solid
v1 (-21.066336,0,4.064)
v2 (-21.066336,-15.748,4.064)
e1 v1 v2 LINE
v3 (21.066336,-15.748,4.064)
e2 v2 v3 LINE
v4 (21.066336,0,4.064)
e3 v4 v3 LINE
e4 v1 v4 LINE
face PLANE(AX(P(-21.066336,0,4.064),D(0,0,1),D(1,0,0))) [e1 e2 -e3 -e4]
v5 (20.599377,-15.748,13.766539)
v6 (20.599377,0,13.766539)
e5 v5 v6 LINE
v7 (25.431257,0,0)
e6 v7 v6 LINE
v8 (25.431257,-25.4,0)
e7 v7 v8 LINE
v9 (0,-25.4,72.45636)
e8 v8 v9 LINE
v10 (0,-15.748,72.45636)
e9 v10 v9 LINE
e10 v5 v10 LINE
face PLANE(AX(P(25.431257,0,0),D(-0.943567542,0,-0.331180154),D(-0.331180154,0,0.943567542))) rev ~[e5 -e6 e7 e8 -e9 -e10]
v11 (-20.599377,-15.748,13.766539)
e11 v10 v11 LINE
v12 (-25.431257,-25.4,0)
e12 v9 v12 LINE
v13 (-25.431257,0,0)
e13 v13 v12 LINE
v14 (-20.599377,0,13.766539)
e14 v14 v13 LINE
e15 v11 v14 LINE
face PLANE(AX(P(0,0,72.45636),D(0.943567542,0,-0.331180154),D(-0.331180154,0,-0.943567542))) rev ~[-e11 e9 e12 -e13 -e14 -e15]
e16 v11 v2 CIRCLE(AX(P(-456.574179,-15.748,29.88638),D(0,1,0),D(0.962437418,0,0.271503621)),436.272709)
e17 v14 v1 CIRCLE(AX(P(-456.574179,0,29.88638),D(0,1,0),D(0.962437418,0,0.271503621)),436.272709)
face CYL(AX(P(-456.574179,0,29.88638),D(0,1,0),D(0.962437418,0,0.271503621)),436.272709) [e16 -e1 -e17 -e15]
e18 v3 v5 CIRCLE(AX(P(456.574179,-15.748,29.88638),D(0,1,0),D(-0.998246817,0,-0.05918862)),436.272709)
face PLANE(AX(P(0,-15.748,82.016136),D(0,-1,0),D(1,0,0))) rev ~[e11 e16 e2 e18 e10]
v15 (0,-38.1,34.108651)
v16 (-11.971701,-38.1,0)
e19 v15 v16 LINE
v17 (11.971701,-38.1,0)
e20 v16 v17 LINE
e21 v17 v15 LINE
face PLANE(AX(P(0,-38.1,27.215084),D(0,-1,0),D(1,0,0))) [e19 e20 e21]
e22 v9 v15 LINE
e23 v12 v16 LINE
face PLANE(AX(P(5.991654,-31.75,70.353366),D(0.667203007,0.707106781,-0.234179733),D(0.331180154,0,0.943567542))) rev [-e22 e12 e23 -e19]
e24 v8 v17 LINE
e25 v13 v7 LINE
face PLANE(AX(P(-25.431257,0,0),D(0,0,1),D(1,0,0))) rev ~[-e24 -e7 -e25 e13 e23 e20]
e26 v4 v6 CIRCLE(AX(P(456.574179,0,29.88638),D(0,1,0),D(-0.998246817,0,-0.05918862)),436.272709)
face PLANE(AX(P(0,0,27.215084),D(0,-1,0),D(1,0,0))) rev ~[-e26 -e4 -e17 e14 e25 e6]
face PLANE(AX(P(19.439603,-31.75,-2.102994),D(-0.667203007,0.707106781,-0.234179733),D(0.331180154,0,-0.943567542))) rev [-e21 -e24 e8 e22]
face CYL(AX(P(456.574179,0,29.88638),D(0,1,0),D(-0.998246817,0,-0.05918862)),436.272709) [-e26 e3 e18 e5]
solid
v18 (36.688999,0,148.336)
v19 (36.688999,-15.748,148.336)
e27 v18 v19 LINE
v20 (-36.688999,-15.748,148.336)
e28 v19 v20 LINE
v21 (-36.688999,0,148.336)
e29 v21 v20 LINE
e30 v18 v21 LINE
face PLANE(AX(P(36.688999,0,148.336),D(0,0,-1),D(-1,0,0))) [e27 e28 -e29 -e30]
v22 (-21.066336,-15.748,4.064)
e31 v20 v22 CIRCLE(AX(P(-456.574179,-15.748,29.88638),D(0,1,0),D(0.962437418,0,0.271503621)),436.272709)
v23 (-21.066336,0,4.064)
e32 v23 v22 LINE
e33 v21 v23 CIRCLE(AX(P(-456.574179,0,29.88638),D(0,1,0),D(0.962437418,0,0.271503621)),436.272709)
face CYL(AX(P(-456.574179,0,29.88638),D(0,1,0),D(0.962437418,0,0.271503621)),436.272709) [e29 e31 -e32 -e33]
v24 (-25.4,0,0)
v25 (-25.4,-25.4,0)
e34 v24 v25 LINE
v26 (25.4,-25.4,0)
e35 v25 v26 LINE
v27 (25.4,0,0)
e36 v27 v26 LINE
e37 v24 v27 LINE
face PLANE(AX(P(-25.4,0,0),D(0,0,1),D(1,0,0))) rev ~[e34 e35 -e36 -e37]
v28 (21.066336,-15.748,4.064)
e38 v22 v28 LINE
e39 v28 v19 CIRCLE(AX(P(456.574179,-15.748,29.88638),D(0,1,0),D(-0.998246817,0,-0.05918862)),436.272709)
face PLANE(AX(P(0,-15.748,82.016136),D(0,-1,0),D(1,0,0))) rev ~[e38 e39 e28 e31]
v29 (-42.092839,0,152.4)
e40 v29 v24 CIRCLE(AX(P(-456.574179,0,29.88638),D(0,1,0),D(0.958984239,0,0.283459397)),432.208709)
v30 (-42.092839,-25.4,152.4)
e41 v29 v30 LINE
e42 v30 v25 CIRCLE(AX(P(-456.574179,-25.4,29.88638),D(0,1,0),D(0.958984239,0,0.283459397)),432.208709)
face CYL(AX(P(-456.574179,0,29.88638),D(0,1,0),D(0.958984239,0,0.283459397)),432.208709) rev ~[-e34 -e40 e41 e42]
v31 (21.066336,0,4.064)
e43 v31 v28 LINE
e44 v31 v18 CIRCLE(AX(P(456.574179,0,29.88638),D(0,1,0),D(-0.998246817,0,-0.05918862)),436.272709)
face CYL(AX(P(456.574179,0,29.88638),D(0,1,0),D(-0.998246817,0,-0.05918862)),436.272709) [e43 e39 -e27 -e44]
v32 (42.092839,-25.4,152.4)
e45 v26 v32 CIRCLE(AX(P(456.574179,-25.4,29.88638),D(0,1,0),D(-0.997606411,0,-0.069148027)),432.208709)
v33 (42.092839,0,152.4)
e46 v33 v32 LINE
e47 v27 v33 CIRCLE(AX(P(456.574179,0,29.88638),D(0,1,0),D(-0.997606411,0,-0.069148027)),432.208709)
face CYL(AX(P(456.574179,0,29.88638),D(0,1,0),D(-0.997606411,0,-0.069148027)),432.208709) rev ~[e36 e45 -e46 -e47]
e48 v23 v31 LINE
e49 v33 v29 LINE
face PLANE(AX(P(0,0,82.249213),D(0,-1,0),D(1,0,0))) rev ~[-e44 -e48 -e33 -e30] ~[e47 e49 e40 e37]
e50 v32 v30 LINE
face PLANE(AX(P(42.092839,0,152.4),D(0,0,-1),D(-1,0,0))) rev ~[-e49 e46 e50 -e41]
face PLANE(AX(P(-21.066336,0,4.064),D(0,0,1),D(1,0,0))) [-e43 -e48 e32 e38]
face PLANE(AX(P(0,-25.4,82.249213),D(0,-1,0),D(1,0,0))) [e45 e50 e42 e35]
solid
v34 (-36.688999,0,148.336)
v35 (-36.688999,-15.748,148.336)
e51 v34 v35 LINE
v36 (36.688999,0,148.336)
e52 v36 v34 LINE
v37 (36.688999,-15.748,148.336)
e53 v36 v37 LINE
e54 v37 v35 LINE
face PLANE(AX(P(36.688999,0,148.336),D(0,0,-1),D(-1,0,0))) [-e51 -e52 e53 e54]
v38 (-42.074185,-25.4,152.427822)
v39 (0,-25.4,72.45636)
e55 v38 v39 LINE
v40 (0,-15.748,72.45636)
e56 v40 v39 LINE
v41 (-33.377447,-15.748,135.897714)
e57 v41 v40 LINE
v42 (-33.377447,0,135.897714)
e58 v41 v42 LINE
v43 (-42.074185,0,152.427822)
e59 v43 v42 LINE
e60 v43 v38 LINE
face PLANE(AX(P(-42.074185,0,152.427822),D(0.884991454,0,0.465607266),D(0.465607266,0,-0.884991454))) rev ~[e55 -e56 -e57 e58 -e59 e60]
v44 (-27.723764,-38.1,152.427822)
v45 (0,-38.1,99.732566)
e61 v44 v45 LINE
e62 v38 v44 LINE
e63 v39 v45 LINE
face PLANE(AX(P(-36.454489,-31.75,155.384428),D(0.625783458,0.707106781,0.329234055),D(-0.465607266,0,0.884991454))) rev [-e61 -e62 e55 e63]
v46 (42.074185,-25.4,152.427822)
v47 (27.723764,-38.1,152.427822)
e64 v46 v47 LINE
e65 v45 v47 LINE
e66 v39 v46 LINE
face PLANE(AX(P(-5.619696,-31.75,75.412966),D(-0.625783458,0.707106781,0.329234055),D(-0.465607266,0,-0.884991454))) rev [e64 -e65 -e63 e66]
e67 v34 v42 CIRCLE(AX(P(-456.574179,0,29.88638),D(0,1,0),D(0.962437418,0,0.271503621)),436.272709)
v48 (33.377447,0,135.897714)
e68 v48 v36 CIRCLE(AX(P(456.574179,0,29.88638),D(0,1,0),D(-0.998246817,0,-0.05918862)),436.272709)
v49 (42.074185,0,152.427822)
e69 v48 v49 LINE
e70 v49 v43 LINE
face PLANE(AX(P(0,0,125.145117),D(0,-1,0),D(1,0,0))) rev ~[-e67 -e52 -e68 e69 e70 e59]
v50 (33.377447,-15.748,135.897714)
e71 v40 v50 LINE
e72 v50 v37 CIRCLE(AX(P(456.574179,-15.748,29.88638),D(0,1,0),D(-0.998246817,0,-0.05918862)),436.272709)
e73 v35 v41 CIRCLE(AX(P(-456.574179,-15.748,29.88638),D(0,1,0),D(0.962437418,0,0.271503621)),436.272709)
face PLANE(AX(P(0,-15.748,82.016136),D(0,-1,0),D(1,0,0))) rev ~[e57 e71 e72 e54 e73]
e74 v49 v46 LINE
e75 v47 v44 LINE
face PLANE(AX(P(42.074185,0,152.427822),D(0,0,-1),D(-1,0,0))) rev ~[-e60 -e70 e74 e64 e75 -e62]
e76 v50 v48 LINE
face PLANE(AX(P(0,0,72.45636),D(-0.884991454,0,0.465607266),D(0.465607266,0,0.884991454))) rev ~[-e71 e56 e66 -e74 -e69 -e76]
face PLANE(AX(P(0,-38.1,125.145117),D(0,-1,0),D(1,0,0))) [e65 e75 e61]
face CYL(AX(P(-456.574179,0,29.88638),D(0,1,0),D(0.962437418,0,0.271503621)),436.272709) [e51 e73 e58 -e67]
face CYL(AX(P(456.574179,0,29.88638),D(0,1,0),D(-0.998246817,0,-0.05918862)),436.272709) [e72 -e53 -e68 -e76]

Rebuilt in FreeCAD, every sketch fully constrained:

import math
import FreeCAD as App
import Part
import Sketcher
Q = App.Units.Quantity


def edges_at(feature, points):
    """Names of the edges that pass closest to the given points."""
    edges = feature.Shape.Edges
    near = lambda p: min(range(len(edges)), key=lambda i: edges[i].distToShape(Part.Vertex(*p))[0])
    return sorted({f"Edge{near(p) + 1}" for p in points})


def add_polygon(sketch, points):
    """Adds a closed chain of lines whose ends are joined by coincident constraints."""
    first, n = sketch.GeometryCount, len(points)
    for a, b in zip(points, points[1:] + points[:1]):
        sketch.addGeometry(Part.LineSegment(App.Vector(*a, 0), App.Vector(*b, 0)), False)
    for i in range(n):
        sketch.addConstraint(Sketcher.Constraint("Coincident", first + i, 2, first + (i + 1) % n, 1))

doc = App.newDocument("Part")
body = doc.addObject("PartDesign::Body", "Body")

sketch1 = body.newObject("Sketcher::SketchObject", "Sketch")
sketch1.AttachmentSupport = (doc.getObject("XZ_Plane"), [""])
sketch1.MapMode = "FlatFace"
sketch1.addGeometry(Part.LineSegment(App.Vector(-25.4, 0, 0), App.Vector(25.4, 0, 0)), False)
sketch1.addGeometry(Part.ArcOfCircle(Part.Circle(App.Vector(456.574179, 29.88638, 0), App.Vector(0, 0, 1), 432.208709), math.radians(163.533219), math.radians(183.965054)), False)
sketch1.addGeometry(Part.LineSegment(App.Vector(42.092839, 152.4, 0), App.Vector(-42.092839, 152.4, 0)), False)
sketch1.addGeometry(Part.ArcOfCircle(Part.Circle(App.Vector(-456.574179, 29.88638, 0), App.Vector(0, 0, 1), 432.208709), math.radians(-3.965054), math.radians(16.466781)), False)
sketch1.addConstraint(Sketcher.Constraint("Coincident", 0, 2, 1, 2))
sketch1.addConstraint(Sketcher.Constraint("Coincident", 1, 1, 2, 1))
sketch1.addConstraint(Sketcher.Constraint("Coincident", 2, 2, 3, 2))
sketch1.addConstraint(Sketcher.Constraint("Coincident", 3, 1, 0, 1))
sketch1.addConstraint(Sketcher.Constraint("Horizontal", 0))
sketch1.addConstraint(Sketcher.Constraint("Horizontal", 2))
sketch1.addConstraint(Sketcher.Constraint("Equal", 1, 3))
sketch1.addConstraint(Sketcher.Constraint("Symmetric", 0, 2, 3, 1, -1, 1))
sketch1.addConstraint(Sketcher.Constraint("Horizontal", 1, 3, 3, 3))
sketch1.addConstraint(Sketcher.Constraint("DistanceX", 0, 1, 0, 2, Q("2 in")))
sketch1.addConstraint(Sketcher.Constraint("DistanceY", -1, 1, 2, 2, Q("6 in")))
sketch1.addConstraint(Sketcher.Constraint("Radius", 1, 432.208709))
sketch1.addConstraint(Sketcher.Constraint("DistanceX", 2, 2, 2, 1, 84.185678))
pad1 = body.newObject("PartDesign::Pad", "Pad")
pad1.Profile = sketch1
pad1.Length = Q("1 in")
body2 = doc.addObject("PartDesign::Body", "Body001")

sketch2 = body2.newObject("Sketcher::SketchObject", "Sketch001")
sketch2.AttachmentSupport = (doc.getObject("XZ_Plane001"), [""])
sketch2.MapMode = "FlatFace"
add_polygon(sketch2, [(42.074185, 152.427822), (-42.074185, 152.427822), (0, 72.45636)])
sketch2.addConstraint(Sketcher.Constraint("Horizontal", 0))
sketch2.addConstraint(Sketcher.Constraint("PointOnObject", 1, 2, -2))
sketch2.addConstraint(Sketcher.Constraint("Equal", 1, 2))
sketch2.addConstraint(Sketcher.Constraint("DistanceX", 0, 2, 0, 1, 84.14837))
sketch2.addConstraint(Sketcher.Constraint("DistanceY", -1, 1, 1, 2, 72.45636))
sketch2.addConstraint(Sketcher.Constraint("Distance", 1, 90.364107))
pad2 = body2.newObject("PartDesign::Pad", "Pad001")
pad2.Profile = sketch2
pad2.Length = Q("1.5 in")
doc.recompute()

chamfer = body2.newObject("PartDesign::Chamfer", "Chamfer")
chamfer.Base = (pad2, edges_at(pad2, [(-21.037, -38.1, 112.442), (21.037, -38.1, 112.442)]))
chamfer.Size = Q("0.5 in")
body3 = doc.addObject("PartDesign::Body", "Body002")

sketch3 = body3.newObject("Sketcher::SketchObject", "Sketch002")
sketch3.AttachmentSupport = (doc.getObject("XZ_Plane002"), [""])
sketch3.MapMode = "FlatFace"
add_polygon(sketch3, [(25.431257, 0), (0, 72.45636), (-25.431257, 0)])
sketch3.addConstraint(Sketcher.Constraint("Horizontal", 2))
sketch3.addConstraint(Sketcher.Constraint("Symmetric", 1, 2, 2, 2, -1, 1))
sketch3.addConstraint(Sketcher.Constraint("PointOnObject", 0, 2, -2))
sketch3.addConstraint(Sketcher.Constraint("DistanceX", 2, 1, 2, 2, 50.862513))
sketch3.addConstraint(Sketcher.Constraint("DistanceY", -1, 1, 0, 2, 72.45636))
pad3 = body3.newObject("PartDesign::Pad", "Pad002")
pad3.Profile = sketch3
pad3.Length = Q("1.5 in")
doc.recompute()

chamfer2 = body3.newObject("PartDesign::Chamfer", "Chamfer001")
chamfer2.Base = (pad3, edges_at(pad3, [(-12.716, -38.1, 36.228), (12.716, -38.1, 36.228)]))
chamfer2.Size = Q("0.5 in")
body4 = doc.addObject("PartDesign::Body", "Body003")

sketch4 = body4.newObject("Sketcher::SketchObject", "Sketch003")
sketch4.AttachmentSupport = (doc.getObject("XZ_Plane003"), [""])
sketch4.MapMode = "FlatFace"
sketch4.addGeometry(Part.LineSegment(App.Vector(36.688999, 148.336, 0), App.Vector(-36.688999, 148.336, 0)), False)
sketch4.addGeometry(Part.ArcOfCircle(Part.Circle(App.Vector(-456.574179, 29.88638, 0), App.Vector(0, 0, 1), 436.272709), math.radians(-3.393241), math.radians(15.753761)), False)
sketch4.addGeometry(Part.LineSegment(App.Vector(-21.066336, 4.064, 0), App.Vector(21.066336, 4.064, 0)), False)
sketch4.addGeometry(Part.ArcOfCircle(Part.Circle(App.Vector(456.574179, 29.88638, 0), App.Vector(0, 0, 1), 436.272709), math.radians(164.246239), math.radians(183.393241)), False)
sketch4.addConstraint(Sketcher.Constraint("Coincident", 0, 2, 1, 2))
sketch4.addConstraint(Sketcher.Constraint("Coincident", 1, 1, 2, 1))
sketch4.addConstraint(Sketcher.Constraint("Coincident", 2, 2, 3, 2))
sketch4.addConstraint(Sketcher.Constraint("Coincident", 3, 1, 0, 1))
sketch4.addConstraint(Sketcher.Constraint("Horizontal", 0))
sketch4.addConstraint(Sketcher.Constraint("Horizontal", 2))
sketch4.addConstraint(Sketcher.Constraint("Equal", 1, 3))
sketch4.addConstraint(Sketcher.Constraint("Symmetric", 1, 3, 3, 3, -2))
sketch4.addConstraint(Sketcher.Constraint("DistanceY", -1, 1, 0, 2, Q("5.84 in")))
sketch4.addConstraint(Sketcher.Constraint("DistanceY", -1, 1, 2, 2, Q("0.16 in")))
sketch4.addConstraint(Sketcher.Constraint("Radius", 1, 436.272709))
sketch4.addConstraint(Sketcher.Constraint("DistanceX", 0, 2, 0, 1, 73.377998))
sketch4.addConstraint(Sketcher.Constraint("DistanceX", 2, 1, 2, 2, 42.132671))
pad4 = body4.newObject("PartDesign::Pad", "Pad003")
pad4.Profile = sketch4
pad4.Length = Q("0.62 in")
doc.recompute()

body5 = doc.addObject("PartDesign::Body", "Body004")
body5.BaseFeature = body4
boolean = body.newObject("PartDesign::Boolean", "Boolean")
boolean.Type = "Cut"
boolean.addObjects([body5])
doc.recompute()

body6 = doc.addObject("PartDesign::Body", "Body005")
body6.BaseFeature = body4
boolean2 = body2.newObject("PartDesign::Boolean", "Boolean001")
boolean2.Type = "Cut"
boolean2.addObjects([body6])
doc.recompute()

boolean3 = body3.newObject("PartDesign::Boolean", "Boolean002")
boolean3.Type = "Cut"
boolean3.addObjects([body4])

doc.recompute()
